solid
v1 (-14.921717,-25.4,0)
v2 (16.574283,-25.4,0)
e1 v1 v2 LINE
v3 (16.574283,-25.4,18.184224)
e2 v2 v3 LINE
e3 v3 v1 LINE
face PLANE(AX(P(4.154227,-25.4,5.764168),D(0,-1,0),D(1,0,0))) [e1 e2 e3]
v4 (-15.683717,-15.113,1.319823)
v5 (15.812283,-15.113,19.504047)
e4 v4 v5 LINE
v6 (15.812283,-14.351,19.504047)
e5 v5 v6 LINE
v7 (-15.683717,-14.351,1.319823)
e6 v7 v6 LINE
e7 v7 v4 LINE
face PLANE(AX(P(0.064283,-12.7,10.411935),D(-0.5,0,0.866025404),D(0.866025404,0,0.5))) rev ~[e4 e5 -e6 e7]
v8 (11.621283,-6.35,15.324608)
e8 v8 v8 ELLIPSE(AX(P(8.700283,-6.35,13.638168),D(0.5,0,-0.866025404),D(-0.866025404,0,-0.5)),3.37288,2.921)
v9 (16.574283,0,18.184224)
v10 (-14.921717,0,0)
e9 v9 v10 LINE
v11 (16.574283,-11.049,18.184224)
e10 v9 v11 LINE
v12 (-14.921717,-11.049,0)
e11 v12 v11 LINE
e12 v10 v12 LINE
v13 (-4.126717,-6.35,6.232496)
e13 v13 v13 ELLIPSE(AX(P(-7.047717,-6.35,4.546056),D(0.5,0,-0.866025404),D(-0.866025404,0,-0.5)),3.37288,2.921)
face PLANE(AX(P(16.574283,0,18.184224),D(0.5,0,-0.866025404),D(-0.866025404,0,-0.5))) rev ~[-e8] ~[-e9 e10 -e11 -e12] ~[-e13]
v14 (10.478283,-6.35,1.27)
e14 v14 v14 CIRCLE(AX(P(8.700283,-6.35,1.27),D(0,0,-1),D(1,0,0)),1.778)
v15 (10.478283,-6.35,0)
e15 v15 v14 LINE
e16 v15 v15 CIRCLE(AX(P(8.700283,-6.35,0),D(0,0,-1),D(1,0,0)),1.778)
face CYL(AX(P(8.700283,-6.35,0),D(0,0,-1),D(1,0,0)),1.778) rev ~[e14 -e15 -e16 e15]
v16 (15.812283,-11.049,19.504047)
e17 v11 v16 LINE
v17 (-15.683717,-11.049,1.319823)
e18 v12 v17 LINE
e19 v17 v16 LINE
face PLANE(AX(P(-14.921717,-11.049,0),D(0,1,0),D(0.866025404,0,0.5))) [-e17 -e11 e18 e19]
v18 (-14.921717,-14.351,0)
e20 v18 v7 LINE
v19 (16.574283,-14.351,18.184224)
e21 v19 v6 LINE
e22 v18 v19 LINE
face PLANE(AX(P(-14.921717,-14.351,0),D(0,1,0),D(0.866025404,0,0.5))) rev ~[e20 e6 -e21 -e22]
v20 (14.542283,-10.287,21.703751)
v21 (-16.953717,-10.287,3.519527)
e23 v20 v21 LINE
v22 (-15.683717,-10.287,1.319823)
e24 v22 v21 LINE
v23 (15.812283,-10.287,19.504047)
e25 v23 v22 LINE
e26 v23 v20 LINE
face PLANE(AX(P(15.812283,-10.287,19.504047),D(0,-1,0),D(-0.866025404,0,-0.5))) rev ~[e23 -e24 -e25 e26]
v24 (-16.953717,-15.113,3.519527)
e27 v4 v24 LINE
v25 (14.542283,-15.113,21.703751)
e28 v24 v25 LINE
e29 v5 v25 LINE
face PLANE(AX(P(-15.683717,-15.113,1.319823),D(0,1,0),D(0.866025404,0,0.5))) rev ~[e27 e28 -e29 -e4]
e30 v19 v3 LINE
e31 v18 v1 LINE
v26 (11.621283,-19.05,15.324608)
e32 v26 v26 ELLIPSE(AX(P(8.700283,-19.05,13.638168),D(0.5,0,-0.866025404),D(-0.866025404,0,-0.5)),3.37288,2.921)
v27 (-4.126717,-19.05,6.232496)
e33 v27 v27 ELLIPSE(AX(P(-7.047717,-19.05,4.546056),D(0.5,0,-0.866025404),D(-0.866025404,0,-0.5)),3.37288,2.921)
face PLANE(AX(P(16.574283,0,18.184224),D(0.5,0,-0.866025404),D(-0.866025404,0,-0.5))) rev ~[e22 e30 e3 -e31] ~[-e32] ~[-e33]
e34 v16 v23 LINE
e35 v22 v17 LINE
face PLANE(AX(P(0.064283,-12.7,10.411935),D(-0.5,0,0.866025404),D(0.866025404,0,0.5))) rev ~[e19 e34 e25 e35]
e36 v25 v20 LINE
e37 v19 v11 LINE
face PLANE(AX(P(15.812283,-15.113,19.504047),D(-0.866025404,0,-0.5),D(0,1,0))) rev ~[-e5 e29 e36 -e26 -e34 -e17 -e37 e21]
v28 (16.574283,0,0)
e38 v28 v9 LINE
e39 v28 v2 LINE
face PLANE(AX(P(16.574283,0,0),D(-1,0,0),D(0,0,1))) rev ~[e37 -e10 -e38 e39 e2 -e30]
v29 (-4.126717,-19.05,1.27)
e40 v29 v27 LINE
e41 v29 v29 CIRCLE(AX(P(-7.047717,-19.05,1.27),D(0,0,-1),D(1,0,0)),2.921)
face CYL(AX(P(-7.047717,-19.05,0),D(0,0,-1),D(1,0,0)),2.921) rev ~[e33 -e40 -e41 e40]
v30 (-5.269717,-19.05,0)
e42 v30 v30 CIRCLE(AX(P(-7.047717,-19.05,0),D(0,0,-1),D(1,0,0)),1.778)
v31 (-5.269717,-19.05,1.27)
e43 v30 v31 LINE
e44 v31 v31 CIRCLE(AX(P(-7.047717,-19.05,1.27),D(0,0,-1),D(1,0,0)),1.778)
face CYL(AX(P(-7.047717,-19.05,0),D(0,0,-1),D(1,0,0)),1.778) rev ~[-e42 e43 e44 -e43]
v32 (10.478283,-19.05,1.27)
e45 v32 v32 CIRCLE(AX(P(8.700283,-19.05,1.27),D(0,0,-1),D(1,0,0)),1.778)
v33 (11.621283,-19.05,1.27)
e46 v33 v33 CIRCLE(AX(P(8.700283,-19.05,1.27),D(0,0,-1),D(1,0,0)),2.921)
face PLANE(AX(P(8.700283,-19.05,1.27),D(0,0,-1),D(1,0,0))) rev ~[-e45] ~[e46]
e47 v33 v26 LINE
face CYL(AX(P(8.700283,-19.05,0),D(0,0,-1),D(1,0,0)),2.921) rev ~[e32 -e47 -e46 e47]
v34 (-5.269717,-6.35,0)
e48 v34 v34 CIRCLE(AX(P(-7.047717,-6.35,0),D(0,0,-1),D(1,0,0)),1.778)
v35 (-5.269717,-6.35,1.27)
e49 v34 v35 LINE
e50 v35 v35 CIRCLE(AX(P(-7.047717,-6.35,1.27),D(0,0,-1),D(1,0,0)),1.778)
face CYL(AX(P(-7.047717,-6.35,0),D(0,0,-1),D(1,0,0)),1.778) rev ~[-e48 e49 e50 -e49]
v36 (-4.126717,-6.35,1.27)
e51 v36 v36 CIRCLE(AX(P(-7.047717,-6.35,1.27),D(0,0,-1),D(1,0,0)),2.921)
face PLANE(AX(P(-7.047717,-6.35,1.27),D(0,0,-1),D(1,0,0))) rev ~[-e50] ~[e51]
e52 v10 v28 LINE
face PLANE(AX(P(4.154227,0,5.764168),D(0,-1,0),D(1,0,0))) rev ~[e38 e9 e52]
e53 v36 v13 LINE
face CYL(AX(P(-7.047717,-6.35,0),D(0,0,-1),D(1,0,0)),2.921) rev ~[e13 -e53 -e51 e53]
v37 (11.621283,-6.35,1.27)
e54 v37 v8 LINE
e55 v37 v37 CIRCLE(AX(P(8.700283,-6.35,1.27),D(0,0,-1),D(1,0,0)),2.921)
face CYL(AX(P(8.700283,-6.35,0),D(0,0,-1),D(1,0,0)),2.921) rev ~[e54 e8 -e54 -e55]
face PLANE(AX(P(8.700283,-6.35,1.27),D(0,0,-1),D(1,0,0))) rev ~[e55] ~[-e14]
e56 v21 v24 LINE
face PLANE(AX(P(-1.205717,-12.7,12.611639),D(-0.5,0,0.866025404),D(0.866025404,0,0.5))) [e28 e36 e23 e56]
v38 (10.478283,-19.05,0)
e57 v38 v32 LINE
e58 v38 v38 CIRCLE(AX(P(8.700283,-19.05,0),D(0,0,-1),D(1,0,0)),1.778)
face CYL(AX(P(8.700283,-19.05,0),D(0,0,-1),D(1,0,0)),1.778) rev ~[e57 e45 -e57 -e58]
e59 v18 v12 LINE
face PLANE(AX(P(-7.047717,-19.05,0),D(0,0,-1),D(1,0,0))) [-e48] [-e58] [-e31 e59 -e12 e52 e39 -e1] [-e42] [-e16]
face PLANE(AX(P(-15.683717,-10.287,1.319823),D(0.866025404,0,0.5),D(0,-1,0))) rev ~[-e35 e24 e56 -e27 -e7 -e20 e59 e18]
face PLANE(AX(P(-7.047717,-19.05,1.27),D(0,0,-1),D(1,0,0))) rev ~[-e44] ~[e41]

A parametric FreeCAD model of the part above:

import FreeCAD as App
import Part
import Sketcher

V = App.Vector
Q = App.Units.Quantity

doc = App.newDocument("Part")
body = doc.addObject("PartDesign::Body", "Body")

# Sketch on XZ plane
sketch1 = body.newObject("Sketcher::SketchObject", "Sketch")
sketch1.AttachmentSupport = (doc.getObject("XZ_Plane"), [""])
sketch1.MapMode = "FlatFace"
sketch1.addGeometry([
    Part.LineSegment(V(17, 18, 0), V(-15, 0, 0)),
    Part.LineSegment(V(-15, 0, 0), V(17, 0, 0)),
    Part.LineSegment(V(17, 0, 0), V(17, 18, 0)),
], False)
sketch1.addConstraint([
    Sketcher.Constraint("Coincident", 0, 2, 1, 1),
    Sketcher.Constraint("Coincident", 1, 2, 2, 1),
    Sketcher.Constraint("Coincident", 2, 2, 0, 1),
    Sketcher.Constraint("Horizontal", 1),
    Sketcher.Constraint("Vertical", 2),
    Sketcher.Constraint("PointOnObject", 0, 2, -1),
    Sketcher.Constraint("Angle", 0, Q("-150 deg")),
    Sketcher.Constraint("DistanceX", 1, 1, 1, 2, Q("1.24 in")),
    Sketcher.Constraint("DistanceX", 0, 2, -1, 1, 14.921717),
])
pad1 = body.newObject("PartDesign::Pad", "Pad")
pad1.Profile = sketch1
pad1.Length = Q("1 in")

# Sketch on XY plane
sketch2 = body.newObject("Sketcher::SketchObject", "Sketch001")
sketch2.AttachmentSupport = (doc.getObject("XY_Plane"), [""])
sketch2.MapMode = "FlatFace"
sketch2.addGeometry([
    Part.Circle(V(-7, -19.1, 0), V(0, 0, 1), 2.9),
    Part.Circle(V(8.7, -19.1, 0), V(0, 0, 1), 2.9),
    Part.Circle(V(-7, -6.3, 0), V(0, 0, 1), 2.9),
    Part.Circle(V(8.7, -6.3, 0), V(0, 0, 1), 2.9),
], False)
sketch2.addConstraint([
    Sketcher.Constraint("Equal", 0, 1),
    Sketcher.Constraint("Equal", 1, 2),
    Sketcher.Constraint("Equal", 2, 3),
    Sketcher.Constraint("Horizontal", 0, 3, 1, 3),
    Sketcher.Constraint("Horizontal", 2, 3, 3, 3),
    Sketcher.Constraint("Vertical", 0, 3, 2, 3),
    Sketcher.Constraint("Vertical", 1, 3, 3, 3),
    Sketcher.Constraint("Diameter", 0, Q("0.23 in")),
    Sketcher.Constraint("DistanceY", 0, 3, 2, 3, Q("0.5 in")),
    Sketcher.Constraint("DistanceY", 0, 3, -1, 1, Q("0.75 in")),
    Sketcher.Constraint("DistanceX", 0, 3, 1, 3, Q("0.62 in")),
    Sketcher.Constraint("DistanceX", 0, 3, -1, 1, 7.047717),
])
pocket1 = body.newObject("PartDesign::Pocket", "Pocket")
pocket1.Profile = sketch2
pocket1.Length = Q("1 in")
pocket1.Reversed = True

# Sketch on XY plane
sketch3 = body.newObject("Sketcher::SketchObject", "Sketch002")
sketch3.AttachmentSupport = (doc.getObject("XY_Plane"), [""])
sketch3.MapMode = "FlatFace"
sketch3.addGeometry([
    Part.Circle(V(-7, -19.1, 0), V(0, 0, 1), 2.9),  # 0
    Part.Circle(V(-7, -19.1, 0), V(0, 0, 1), 1.8),  # 1
    Part.Circle(V(8.7, -19.1, 0), V(0, 0, 1), 2.9),  # 2
    Part.Circle(V(8.7, -19.1, 0), V(0, 0, 1), 1.8),  # 3
    Part.Circle(V(-7, -6.3, 0), V(0, 0, 1), 2.9),  # 4
    Part.Circle(V(-7, -6.3, 0), V(0, 0, 1), 1.8),  # 5
    Part.Circle(V(8.7, -6.3, 0), V(0, 0, 1), 2.9),  # 6
    Part.Circle(V(8.7, -6.3, 0), V(0, 0, 1), 1.8),  # 7
], False)
sketch3.addConstraint([
    Sketcher.Constraint("Coincident", 1, 3, 0, 3),
    Sketcher.Constraint("Coincident", 3, 3, 2, 3),
    Sketcher.Constraint("Coincident", 5, 3, 4, 3),
    Sketcher.Constraint("Coincident", 7, 3, 6, 3),
    Sketcher.Constraint("Equal", 0, 2),
    Sketcher.Constraint("Equal", 1, 3),
    Sketcher.Constraint("Equal", 2, 4),
    Sketcher.Constraint("Equal", 3, 5),
    Sketcher.Constraint("Equal", 4, 6),
    Sketcher.Constraint("Equal", 5, 7),
    Sketcher.Constraint("Horizontal", 1, 3, 2, 3),
    Sketcher.Constraint("Horizontal", 5, 3, 6, 3),
    Sketcher.Constraint("Vertical", 1, 3, 4, 3),
    Sketcher.Constraint("Vertical", 3, 3, 6, 3),
    Sketcher.Constraint("Diameter", 0, Q("0.23 in")),
    Sketcher.Constraint("Diameter", 1, Q("0.14 in")),
    Sketcher.Constraint("DistanceY", 0, 3, 4, 3, Q("0.5 in")),
    Sketcher.Constraint("DistanceY", 0, 3, -1, 1, Q("0.75 in")),
    Sketcher.Constraint("DistanceX", 0, 3, 2, 3, Q("0.62 in")),
    Sketcher.Constraint("DistanceX", 0, 3, -1, 1, 7.047717),
])
pad2 = body.newObject("PartDesign::Pad", "Pad001")
pad2.Profile = sketch3
pad2.Length = Q("0.05 in")

# Sketch on an angled plane
sketch4 = body.newObject("Sketcher::SketchObject", "Sketch003")
sketch4.Placement = App.Placement(V(-3.730429, 0, 6.461293), App.Rotation(V(0.866025404, 0, 0.5), V(0, 1, 0), V(-0.5, 0, 0.866025404), "ZXY"))
sketch4.addGeometry([
    Part.LineSegment(V(-12.9, -11, 0), V(-12.9, -14.4, 0)),
    Part.LineSegment(V(-12.9, -14.4, 0), V(23.4, -14.4, 0)),
    Part.LineSegment(V(23.4, -14.4, 0), V(23.4, -11, 0)),
    Part.LineSegment(V(23.4, -11, 0), V(-12.9, -11, 0)),
], False)
sketch4.addConstraint([
    Sketcher.Constraint("Coincident", 0, 2, 1, 1),
    Sketcher.Constraint("Coincident", 1, 2, 2, 1),
    Sketcher.Constraint("Coincident", 2, 2, 3, 1),
    Sketcher.Constraint("Coincident", 3, 2, 0, 1),
    Sketcher.Constraint("Vertical", 0),
    Sketcher.Constraint("Horizontal", 1),
    Sketcher.Constraint("Vertical", 2),
    Sketcher.Constraint("Horizontal", 3),
    Sketcher.Constraint("DistanceY", 0, 2, 0, 1, Q("0.13 in")),
    Sketcher.Constraint("DistanceY", 0, 2, -1, 1, Q("0.565 in")),
    Sketcher.Constraint("DistanceX", 1, 1, 1, 2, 36.368448),
    Sketcher.Constraint("DistanceX", 0, 2, -1, 1, 12.922586),
])
pad3 = body.newObject("PartDesign::Pad", "Pad002")
pad3.Profile = sketch4
pad3.Length = Q("0.06 in")

# Sketch on an angled plane
sketch5 = body.newObject("Sketcher::SketchObject", "Sketch004")
sketch5.Placement = App.Placement(V(-4.492429, 0, 7.781116), App.Rotation(V(0.866025404, 0, 0.5), V(0, 1, 0), V(-0.5, 0, 0.866025404), "ZXY"))
sketch5.addGeometry([
    Part.LineSegment(V(-12.9, -10.3, 0), V(-12.9, -15.1, 0)),
    Part.LineSegment(V(-12.9, -15.1, 0), V(23.4, -15.1, 0)),
    Part.LineSegment(V(23.4, -15.1, 0), V(23.4, -10.3, 0)),
    Part.LineSegment(V(23.4, -10.3, 0), V(-12.9, -10.3, 0)),
], False)
sketch5.addConstraint([
    Sketcher.Constraint("Coincident", 0, 2, 1, 1),
    Sketcher.Constraint("Coincident", 1, 2, 2, 1),
    Sketcher.Constraint("Coincident", 2, 2, 3, 1),
    Sketcher.Constraint("Coincident", 3, 2, 0, 1),
    Sketcher.Constraint("Vertical", 0),
    Sketcher.Constraint("Horizontal", 1),
    Sketcher.Constraint("Vertical", 2),
    Sketcher.Constraint("Horizontal", 3),
    Sketcher.Constraint("DistanceY", 0, 2, 0, 1, Q("0.19 in")),
    Sketcher.Constraint("DistanceY", 0, 2, -1, 1, Q("0.595 in")),
    Sketcher.Constraint("DistanceX", 1, 1, 1, 2, 36.368448),
    Sketcher.Constraint("DistanceX", 0, 2, -1, 1, 12.922586),
])
pad4 = body.newObject("PartDesign::Pad", "Pad003")
pad4.Profile = sketch5
pad4.Length = Q("0.1 in")

doc.recompute()
